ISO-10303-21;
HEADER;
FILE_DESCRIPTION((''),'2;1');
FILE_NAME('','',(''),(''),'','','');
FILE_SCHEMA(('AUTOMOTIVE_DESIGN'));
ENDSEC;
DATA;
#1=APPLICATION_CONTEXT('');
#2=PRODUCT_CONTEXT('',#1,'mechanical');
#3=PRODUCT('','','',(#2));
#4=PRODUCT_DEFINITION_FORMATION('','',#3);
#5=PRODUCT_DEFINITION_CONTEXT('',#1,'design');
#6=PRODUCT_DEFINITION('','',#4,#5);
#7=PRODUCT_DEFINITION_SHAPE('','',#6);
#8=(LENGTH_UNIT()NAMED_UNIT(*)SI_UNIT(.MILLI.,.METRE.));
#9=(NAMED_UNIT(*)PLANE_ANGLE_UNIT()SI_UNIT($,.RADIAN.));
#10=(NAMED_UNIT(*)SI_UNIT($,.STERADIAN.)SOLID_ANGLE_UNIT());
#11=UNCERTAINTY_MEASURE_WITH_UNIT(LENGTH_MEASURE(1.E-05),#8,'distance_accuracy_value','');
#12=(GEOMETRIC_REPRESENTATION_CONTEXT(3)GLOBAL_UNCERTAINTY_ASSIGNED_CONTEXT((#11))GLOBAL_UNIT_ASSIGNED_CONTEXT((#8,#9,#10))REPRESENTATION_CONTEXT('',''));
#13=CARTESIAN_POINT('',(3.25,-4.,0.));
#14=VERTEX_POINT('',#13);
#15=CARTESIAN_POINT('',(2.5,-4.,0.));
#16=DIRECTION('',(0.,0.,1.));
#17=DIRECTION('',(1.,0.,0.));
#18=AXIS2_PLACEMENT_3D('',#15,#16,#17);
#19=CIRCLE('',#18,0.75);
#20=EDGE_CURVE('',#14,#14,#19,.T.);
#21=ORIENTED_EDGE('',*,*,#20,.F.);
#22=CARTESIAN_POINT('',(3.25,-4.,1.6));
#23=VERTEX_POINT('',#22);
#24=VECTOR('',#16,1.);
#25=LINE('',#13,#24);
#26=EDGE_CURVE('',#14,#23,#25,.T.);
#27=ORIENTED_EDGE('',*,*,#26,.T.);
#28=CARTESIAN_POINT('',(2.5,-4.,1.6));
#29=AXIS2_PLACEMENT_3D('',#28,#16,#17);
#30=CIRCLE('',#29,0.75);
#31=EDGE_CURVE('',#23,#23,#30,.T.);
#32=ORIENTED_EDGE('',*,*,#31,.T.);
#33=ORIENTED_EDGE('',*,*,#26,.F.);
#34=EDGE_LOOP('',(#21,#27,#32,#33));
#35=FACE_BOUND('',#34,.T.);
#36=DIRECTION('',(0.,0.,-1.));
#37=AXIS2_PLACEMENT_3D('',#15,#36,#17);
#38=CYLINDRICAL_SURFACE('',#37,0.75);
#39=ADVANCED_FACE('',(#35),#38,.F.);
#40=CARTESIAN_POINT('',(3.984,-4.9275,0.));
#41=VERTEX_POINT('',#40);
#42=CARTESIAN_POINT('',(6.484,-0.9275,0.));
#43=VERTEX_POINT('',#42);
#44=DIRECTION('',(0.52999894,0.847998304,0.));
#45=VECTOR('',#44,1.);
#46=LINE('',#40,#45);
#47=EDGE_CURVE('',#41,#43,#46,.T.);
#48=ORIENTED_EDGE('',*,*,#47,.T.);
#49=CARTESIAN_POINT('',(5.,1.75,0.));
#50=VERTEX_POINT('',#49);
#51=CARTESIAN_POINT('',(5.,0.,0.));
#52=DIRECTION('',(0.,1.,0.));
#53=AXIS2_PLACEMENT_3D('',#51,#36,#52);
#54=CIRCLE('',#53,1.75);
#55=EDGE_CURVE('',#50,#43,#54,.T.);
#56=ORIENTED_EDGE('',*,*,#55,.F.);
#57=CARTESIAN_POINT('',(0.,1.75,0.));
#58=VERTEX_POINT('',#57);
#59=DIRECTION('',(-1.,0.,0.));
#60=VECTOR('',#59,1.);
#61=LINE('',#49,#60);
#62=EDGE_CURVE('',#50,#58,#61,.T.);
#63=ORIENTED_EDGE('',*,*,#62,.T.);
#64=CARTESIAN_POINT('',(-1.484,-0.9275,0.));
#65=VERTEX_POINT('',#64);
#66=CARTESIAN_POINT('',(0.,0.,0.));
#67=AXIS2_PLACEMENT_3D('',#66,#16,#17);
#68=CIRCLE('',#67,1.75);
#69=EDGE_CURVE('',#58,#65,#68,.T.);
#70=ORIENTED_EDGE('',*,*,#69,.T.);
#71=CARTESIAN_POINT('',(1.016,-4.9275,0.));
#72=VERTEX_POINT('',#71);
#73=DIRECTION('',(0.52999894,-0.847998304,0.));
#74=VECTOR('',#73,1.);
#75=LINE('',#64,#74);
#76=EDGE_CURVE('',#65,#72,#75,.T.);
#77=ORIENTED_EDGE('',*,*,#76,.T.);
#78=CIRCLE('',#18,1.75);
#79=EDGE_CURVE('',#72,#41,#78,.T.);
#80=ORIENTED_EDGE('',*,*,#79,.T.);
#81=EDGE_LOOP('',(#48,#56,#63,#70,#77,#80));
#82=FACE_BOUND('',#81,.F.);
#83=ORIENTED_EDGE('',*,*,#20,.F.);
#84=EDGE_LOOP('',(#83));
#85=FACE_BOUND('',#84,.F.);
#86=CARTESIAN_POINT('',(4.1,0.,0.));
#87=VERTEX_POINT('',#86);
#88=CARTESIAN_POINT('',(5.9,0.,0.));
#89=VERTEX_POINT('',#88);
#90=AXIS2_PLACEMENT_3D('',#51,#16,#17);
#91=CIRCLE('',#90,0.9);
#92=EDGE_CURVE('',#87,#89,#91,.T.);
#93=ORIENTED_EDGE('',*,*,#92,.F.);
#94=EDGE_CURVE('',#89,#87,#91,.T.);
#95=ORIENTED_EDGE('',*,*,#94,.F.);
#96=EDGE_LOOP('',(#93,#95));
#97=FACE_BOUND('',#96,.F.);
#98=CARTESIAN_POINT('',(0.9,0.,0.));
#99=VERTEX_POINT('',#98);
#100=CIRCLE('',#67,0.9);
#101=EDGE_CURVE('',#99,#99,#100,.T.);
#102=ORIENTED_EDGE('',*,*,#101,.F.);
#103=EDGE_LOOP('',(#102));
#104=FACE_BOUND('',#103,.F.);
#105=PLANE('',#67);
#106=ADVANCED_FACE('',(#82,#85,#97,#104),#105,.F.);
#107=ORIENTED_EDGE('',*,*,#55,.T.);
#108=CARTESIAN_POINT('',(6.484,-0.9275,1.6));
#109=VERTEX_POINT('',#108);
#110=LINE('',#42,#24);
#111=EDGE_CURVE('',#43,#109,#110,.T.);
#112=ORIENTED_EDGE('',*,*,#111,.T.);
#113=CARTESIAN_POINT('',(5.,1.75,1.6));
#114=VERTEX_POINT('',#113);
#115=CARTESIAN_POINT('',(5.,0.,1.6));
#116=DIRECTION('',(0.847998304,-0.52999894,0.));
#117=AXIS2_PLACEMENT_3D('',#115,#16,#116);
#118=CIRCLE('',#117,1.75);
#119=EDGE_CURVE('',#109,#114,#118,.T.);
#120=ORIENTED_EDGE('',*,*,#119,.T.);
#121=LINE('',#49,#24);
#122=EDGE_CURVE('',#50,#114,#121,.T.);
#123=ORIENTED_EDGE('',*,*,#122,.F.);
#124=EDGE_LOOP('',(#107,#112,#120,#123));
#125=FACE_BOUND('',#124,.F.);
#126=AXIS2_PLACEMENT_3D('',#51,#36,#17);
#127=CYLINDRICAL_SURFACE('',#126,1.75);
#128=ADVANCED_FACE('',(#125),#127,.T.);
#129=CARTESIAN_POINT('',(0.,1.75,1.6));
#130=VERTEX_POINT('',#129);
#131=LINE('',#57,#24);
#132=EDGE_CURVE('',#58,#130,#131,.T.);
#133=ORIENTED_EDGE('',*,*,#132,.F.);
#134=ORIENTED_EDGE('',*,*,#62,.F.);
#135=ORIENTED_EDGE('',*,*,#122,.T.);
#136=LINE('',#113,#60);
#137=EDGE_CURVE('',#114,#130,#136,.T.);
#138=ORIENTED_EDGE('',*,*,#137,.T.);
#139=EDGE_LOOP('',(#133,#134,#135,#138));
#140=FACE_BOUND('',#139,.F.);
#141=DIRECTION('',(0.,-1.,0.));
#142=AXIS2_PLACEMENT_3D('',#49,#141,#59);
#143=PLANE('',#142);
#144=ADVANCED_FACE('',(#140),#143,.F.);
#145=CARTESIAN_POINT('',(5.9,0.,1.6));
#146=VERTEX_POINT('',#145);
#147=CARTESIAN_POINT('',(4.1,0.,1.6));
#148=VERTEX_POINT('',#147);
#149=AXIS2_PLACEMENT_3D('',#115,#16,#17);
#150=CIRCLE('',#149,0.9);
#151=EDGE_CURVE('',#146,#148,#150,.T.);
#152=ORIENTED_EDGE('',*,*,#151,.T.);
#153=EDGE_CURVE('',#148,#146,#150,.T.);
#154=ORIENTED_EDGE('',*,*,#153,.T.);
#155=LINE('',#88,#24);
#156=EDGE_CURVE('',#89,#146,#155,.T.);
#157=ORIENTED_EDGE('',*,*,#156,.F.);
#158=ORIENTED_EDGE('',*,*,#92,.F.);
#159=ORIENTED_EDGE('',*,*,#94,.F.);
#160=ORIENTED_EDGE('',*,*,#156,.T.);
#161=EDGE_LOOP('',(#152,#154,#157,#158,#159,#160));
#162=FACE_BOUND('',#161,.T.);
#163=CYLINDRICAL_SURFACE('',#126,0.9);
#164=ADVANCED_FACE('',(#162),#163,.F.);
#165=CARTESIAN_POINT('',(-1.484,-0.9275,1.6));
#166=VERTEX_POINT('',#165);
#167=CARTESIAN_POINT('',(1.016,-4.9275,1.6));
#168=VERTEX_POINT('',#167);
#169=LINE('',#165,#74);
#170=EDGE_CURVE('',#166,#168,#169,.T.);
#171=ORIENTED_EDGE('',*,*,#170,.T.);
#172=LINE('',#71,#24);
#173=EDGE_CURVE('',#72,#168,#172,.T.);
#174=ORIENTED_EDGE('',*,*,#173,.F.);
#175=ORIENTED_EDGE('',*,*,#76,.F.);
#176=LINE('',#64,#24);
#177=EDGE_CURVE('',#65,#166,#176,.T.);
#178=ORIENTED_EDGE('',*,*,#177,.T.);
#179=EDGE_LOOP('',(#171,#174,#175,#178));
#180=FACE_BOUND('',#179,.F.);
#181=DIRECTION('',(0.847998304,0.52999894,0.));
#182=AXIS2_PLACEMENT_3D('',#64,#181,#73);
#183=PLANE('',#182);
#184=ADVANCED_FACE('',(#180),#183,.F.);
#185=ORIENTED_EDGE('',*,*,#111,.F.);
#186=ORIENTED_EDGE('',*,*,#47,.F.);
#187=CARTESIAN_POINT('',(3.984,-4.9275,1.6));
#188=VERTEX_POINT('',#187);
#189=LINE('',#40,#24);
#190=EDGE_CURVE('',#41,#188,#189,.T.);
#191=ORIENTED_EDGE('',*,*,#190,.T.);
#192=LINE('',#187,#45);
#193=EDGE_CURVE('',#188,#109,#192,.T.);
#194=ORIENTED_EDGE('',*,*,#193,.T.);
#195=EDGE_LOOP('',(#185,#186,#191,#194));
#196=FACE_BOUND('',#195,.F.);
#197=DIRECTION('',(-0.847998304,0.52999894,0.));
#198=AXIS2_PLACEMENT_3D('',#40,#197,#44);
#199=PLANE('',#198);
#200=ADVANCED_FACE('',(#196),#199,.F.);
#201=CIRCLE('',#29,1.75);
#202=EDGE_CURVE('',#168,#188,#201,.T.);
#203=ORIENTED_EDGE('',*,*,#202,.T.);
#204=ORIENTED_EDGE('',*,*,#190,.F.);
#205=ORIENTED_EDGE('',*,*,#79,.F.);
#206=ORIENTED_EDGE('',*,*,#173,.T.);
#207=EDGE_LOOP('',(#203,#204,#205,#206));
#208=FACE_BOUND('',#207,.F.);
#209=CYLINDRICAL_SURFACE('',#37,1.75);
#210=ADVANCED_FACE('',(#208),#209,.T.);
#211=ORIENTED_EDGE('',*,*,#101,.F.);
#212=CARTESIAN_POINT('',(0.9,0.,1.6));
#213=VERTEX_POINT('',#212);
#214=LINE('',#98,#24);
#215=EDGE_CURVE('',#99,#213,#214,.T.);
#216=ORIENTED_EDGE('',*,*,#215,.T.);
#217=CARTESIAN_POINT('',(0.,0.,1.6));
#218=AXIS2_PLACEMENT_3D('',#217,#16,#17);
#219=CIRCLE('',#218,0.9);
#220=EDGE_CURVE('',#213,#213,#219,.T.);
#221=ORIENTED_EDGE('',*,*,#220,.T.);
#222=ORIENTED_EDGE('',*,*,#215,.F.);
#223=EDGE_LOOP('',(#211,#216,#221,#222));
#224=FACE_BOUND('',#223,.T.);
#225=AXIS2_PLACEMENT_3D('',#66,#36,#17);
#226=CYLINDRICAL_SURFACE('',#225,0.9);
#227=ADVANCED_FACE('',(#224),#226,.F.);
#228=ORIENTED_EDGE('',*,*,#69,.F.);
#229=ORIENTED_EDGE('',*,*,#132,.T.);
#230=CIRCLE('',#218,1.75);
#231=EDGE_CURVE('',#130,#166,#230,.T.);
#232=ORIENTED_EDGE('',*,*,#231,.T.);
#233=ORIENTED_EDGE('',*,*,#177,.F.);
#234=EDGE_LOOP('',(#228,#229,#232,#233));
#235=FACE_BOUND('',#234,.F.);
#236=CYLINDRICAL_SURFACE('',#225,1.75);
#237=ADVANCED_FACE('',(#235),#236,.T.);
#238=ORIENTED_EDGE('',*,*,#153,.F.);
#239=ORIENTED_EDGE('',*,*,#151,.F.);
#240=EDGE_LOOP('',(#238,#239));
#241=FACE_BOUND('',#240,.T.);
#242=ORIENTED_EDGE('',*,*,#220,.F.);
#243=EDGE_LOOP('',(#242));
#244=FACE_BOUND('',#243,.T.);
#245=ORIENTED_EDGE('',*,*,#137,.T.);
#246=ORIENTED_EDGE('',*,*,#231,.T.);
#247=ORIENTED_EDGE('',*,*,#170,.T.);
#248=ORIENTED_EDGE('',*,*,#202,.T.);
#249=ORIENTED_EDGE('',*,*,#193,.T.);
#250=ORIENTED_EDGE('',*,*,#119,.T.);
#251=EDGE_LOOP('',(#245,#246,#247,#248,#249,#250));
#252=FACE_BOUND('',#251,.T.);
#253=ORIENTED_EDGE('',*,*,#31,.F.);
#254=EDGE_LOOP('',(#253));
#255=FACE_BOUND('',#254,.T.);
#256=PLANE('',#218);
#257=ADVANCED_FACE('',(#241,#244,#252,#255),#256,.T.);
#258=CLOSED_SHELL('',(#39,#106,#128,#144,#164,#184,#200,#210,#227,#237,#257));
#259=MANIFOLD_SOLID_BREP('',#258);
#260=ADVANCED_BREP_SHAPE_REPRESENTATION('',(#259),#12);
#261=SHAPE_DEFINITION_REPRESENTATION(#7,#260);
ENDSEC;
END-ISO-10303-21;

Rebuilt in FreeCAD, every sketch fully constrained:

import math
import FreeCAD as App
import Part
import Sketcher

doc = App.newDocument("Part")
body = doc.addObject("PartDesign::Body", "Body")

# Sketch on XY plane
sketch1 = body.newObject("Sketcher::SketchObject", "Sketch")
sketch1.AttachmentSupport = (doc.getObject("XY_Plane"), [""])
sketch1.MapMode = "FlatFace"
sketch1.addGeometry(Part.ArcOfCircle(Part.Circle(App.Vector(0, 0, 0), App.Vector(0, 0, 1), 1.75), math.radians(90), math.radians(212.005383)), False)
sketch1.addGeometry(Part.LineSegment(App.Vector(-1.484, -0.9275, 0), App.Vector(1.016, -4.9275, 0)), False)
sketch1.addGeometry(Part.ArcOfCircle(Part.Circle(App.Vector(2.5, -4, 0), App.Vector(0, 0, 1), 1.75), math.radians(-147.994617), math.radians(-32.005383)), False)
sketch1.addGeometry(Part.LineSegment(App.Vector(3.984, -4.9275, 0), App.Vector(6.484, -0.9275, 0)), False)
sketch1.addGeometry(Part.ArcOfCircle(Part.Circle(App.Vector(5, 0, 0), App.Vector(0, 0, 1), 1.75), math.radians(-32.005383), math.radians(90)), False)
sketch1.addGeometry(Part.LineSegment(App.Vector(5, 1.75, 0), App.Vector(0, 1.75, 0)), False)
sketch1.addGeometry(Part.Circle(App.Vector(0, 0, 0), App.Vector(0, 0, 1), 0.9), False)
sketch1.addGeometry(Part.Circle(App.Vector(5, 0, 0), App.Vector(0, 0, 1), 0.9), False)
sketch1.addGeometry(Part.Circle(App.Vector(2.5, -4, 0), App.Vector(0, 0, 1), 0.75), False)
sketch1.addConstraint(Sketcher.Constraint("Tangent", 0, 2, 1, 1))
sketch1.addConstraint(Sketcher.Constraint("Tangent", 1, 2, 2, 1))
sketch1.addConstraint(Sketcher.Constraint("Tangent", 2, 2, 3, 1))
sketch1.addConstraint(Sketcher.Constraint("Tangent", 3, 2, 4, 1))
sketch1.addConstraint(Sketcher.Constraint("Tangent", 4, 2, 5, 1))
sketch1.addConstraint(Sketcher.Constraint("Tangent", 5, 2, 0, 1))
sketch1.addConstraint(Sketcher.Constraint("Horizontal", 5))
sketch1.addConstraint(Sketcher.Constraint("Coincident", 0, 3, -1, 1))
sketch1.addConstraint(Sketcher.Constraint("Coincident", 6, 3, -1, 1))
sketch1.addConstraint(Sketcher.Constraint("Coincident", 7, 3, 4, 3))
sketch1.addConstraint(Sketcher.Constraint("Coincident", 8, 3, 2, 3))
sketch1.addConstraint(Sketcher.Constraint("Equal", 0, 2))
sketch1.addConstraint(Sketcher.Constraint("Equal", 2, 4))
sketch1.addConstraint(Sketcher.Constraint("Equal", 6, 7))
sketch1.addConstraint(Sketcher.Constraint("Horizontal", 1, 2, 2, 2))
sketch1.addConstraint(Sketcher.Constraint("Diameter", 6, 1.8))
sketch1.addConstraint(Sketcher.Constraint("Diameter", 8, 1.5))
sketch1.addConstraint(Sketcher.Constraint("DistanceX", 5, 2, 5, 1, 5.0))
sketch1.addConstraint(Sketcher.Constraint("Radius", 0, 1.75))
sketch1.addConstraint(Sketcher.Constraint("DistanceY", 2, 3, -1, 1, 4.0))
pad1 = body.newObject("PartDesign::Pad", "Pad")
pad1.Profile = sketch1
pad1.Length = 1.6

doc.recompute()
